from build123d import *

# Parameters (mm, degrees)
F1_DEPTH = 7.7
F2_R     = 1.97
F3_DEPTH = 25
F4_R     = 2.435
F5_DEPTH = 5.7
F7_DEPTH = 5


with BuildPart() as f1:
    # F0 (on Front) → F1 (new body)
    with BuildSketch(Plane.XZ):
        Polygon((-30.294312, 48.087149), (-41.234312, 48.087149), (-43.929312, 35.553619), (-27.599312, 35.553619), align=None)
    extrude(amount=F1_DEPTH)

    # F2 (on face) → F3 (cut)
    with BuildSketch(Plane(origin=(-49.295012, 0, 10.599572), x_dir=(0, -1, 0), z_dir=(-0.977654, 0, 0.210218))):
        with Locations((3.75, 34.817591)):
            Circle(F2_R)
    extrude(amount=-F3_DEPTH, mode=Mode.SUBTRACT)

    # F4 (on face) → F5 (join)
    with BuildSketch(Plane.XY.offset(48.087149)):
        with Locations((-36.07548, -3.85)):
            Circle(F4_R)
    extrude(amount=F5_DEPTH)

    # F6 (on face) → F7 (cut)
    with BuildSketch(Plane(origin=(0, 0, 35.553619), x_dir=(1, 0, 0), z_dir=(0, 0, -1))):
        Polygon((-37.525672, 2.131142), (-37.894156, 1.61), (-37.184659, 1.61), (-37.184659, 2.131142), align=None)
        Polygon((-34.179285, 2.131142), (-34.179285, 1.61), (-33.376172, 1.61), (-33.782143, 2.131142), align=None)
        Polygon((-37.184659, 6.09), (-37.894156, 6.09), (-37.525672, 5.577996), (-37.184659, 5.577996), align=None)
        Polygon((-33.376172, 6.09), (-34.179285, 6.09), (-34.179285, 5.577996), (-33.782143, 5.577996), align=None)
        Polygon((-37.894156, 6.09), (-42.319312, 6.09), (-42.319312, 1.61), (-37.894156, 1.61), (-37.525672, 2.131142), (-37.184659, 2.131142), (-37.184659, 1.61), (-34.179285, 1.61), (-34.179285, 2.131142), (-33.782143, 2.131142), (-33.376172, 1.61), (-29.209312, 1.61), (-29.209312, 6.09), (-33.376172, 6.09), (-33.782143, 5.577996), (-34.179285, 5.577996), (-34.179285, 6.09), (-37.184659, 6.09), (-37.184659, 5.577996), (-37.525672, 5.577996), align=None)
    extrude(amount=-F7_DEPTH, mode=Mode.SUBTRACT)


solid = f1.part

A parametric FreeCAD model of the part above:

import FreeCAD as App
import Part
import Sketcher
Q = App.Units.Quantity

doc = App.newDocument("Part")
body = doc.addObject("PartDesign::Body", "Body")

# Sketch on XZ plane
sketch1 = doc.addObject("Sketcher::SketchObject", "Sketch")
body.addObject(sketch1)
sketch1.AttachmentSupport = (doc.XZ_Plane, [""])
sketch1.MapMode = "FlatFace"
sketch1.addGeometry([
    Part.LineSegment(App.Vector(-30, 48, 0), App.Vector(-41, 48, 0)),
    Part.LineSegment(App.Vector(-41, 48, 0), App.Vector(-44, 36, 0)),
    Part.LineSegment(App.Vector(-44, 36, 0), App.Vector(-28, 36, 0)),
    Part.LineSegment(App.Vector(-28, 36, 0), App.Vector(-30, 48, 0)),
], False)
sketch1.addConstraint([
    Sketcher.Constraint("Coincident", 0, 2, 1, 1),
    Sketcher.Constraint("Coincident", 1, 2, 2, 1),
    Sketcher.Constraint("Coincident", 2, 2, 3, 1),
    Sketcher.Constraint("Coincident", 3, 2, 0, 1),
    Sketcher.Constraint("Horizontal", 0),
    Sketcher.Constraint("Horizontal", 2),
    Sketcher.Constraint("Equal", 1, 3),
    Sketcher.Constraint("DistanceX", 0, 2, 0, 1, Q("10.94 mm")),
    Sketcher.Constraint("DistanceX", 2, 1, 2, 2, Q("16.33 mm")),
    Sketcher.Constraint("Distance", 1, Q("12.82 mm")),
    Sketcher.Constraint("DistanceY", -1, 1, 0, 2, Q("48.087149 mm")),
    Sketcher.Constraint("DistanceX", 0, 2, -1, 1, Q("41.234312 mm")),
])
pad1 = doc.addObject("PartDesign::Pad", "Pad")
body.addObject(pad1)
pad1.Profile = sketch1
pad1.Length = 7.7

# Sketch on an angled plane
sketch2 = doc.addObject("Sketcher::SketchObject", "Sketch001")
body.addObject(sketch2)
sketch2.Placement = App.Placement(App.Vector(-49.295012, 0, 10.599572), App.Rotation(App.Vector(0, -1, 0), App.Vector(0.21021811, 0, 0.977654513), App.Vector(-0.977654513, 0, 0.21021811), "ZXY"))
sketch2.addGeometry(Part.Circle(App.Vector(3.8, 34.8, 0), App.Vector(0, 0, 1), 2), False)
sketch2.addConstraint([
    Sketcher.Constraint("Diameter", 0, Q("3.94 mm")),
    Sketcher.Constraint("DistanceX", -1, 1, 0, 3, Q("3.75 mm")),
    Sketcher.Constraint("DistanceY", -1, 1, 0, 3, Q("34.817591 mm")),
])
pocket1 = doc.addObject("PartDesign::Pocket", "Pocket")
body.addObject(pocket1)
pocket1.Profile = sketch2
pocket1.Length = 25

# Sketch on XY plane
sketch3 = doc.addObject("Sketcher::SketchObject", "Sketch002")
body.addObject(sketch3)
sketch3.AttachmentSupport = (doc.XY_Plane, [""])
sketch3.MapMode = "FlatFace"
sketch3.AttachmentOffset = App.Placement(App.Vector(0, 0, 48.087149), App.Rotation())
sketch3.addGeometry(Part.Circle(App.Vector(-36.1, -3.9, 0), App.Vector(0, 0, 1), 2.4), False)
sketch3.addConstraint([
    Sketcher.Constraint("Diameter", 0, Q("4.87 mm")),
    Sketcher.Constraint("DistanceY", 0, 3, -1, 1, Q("3.85 mm")),
    Sketcher.Constraint("DistanceX", 0, 3, -1, 1, Q("36.07548 mm")),
])
pad2 = doc.addObject("PartDesign::Pad", "Pad001")
body.addObject(pad2)
pad2.Profile = sketch3
pad2.Length = 5.7

# Sketch on XY plane
sketch4 = doc.addObject("Sketcher::SketchObject", "Sketch003")
body.addObject(sketch4)
sketch4.AttachmentSupport = (doc.XY_Plane, [""])
sketch4.MapMode = "FlatFace"
sketch4.AttachmentOffset = App.Placement(App.Vector(0, 0, 35.553619), App.Rotation())
sketch4.addGeometry([
    Part.LineSegment(App.Vector(-29.2, -1.6, 0), App.Vector(-29.2, -6.1, 0)),
    Part.LineSegment(App.Vector(-29.2, -6.1, 0), App.Vector(-42.3, -6.1, 0)),
    Part.LineSegment(App.Vector(-42.3, -6.1, 0), App.Vector(-42.3, -1.6, 0)),
    Part.LineSegment(App.Vector(-42.3, -1.6, 0), App.Vector(-29.2, -1.6, 0)),
], False)
sketch4.addConstraint([
    Sketcher.Constraint("Coincident", 0, 2, 1, 1),
    Sketcher.Constraint("Coincident", 1, 2, 2, 1),
    Sketcher.Constraint("Coincident", 2, 2, 3, 1),
    Sketcher.Constraint("Coincident", 3, 2, 0, 1),
    Sketcher.Constraint("Vertical", 0),
    Sketcher.Constraint("Horizontal", 1),
    Sketcher.Constraint("Vertical", 2),
    Sketcher.Constraint("Horizontal", 3),
    Sketcher.Constraint("DistanceX", 1, 2, 1, 1, Q("13.11 mm")),
    Sketcher.Constraint("DistanceY", 0, 2, 0, 1, Q("4.48 mm")),
    Sketcher.Constraint("DistanceY", 0, 2, -1, 1, Q("6.09 mm")),
    Sketcher.Constraint("DistanceX", 1, 2, -1, 1, Q("42.319312 mm")),
])
pocket2 = doc.addObject("PartDesign::Pocket", "Pocket001")
body.addObject(pocket2)
pocket2.Profile = sketch4
pocket2.Length = 5
pocket2.Reversed = True

doc.recompute()
